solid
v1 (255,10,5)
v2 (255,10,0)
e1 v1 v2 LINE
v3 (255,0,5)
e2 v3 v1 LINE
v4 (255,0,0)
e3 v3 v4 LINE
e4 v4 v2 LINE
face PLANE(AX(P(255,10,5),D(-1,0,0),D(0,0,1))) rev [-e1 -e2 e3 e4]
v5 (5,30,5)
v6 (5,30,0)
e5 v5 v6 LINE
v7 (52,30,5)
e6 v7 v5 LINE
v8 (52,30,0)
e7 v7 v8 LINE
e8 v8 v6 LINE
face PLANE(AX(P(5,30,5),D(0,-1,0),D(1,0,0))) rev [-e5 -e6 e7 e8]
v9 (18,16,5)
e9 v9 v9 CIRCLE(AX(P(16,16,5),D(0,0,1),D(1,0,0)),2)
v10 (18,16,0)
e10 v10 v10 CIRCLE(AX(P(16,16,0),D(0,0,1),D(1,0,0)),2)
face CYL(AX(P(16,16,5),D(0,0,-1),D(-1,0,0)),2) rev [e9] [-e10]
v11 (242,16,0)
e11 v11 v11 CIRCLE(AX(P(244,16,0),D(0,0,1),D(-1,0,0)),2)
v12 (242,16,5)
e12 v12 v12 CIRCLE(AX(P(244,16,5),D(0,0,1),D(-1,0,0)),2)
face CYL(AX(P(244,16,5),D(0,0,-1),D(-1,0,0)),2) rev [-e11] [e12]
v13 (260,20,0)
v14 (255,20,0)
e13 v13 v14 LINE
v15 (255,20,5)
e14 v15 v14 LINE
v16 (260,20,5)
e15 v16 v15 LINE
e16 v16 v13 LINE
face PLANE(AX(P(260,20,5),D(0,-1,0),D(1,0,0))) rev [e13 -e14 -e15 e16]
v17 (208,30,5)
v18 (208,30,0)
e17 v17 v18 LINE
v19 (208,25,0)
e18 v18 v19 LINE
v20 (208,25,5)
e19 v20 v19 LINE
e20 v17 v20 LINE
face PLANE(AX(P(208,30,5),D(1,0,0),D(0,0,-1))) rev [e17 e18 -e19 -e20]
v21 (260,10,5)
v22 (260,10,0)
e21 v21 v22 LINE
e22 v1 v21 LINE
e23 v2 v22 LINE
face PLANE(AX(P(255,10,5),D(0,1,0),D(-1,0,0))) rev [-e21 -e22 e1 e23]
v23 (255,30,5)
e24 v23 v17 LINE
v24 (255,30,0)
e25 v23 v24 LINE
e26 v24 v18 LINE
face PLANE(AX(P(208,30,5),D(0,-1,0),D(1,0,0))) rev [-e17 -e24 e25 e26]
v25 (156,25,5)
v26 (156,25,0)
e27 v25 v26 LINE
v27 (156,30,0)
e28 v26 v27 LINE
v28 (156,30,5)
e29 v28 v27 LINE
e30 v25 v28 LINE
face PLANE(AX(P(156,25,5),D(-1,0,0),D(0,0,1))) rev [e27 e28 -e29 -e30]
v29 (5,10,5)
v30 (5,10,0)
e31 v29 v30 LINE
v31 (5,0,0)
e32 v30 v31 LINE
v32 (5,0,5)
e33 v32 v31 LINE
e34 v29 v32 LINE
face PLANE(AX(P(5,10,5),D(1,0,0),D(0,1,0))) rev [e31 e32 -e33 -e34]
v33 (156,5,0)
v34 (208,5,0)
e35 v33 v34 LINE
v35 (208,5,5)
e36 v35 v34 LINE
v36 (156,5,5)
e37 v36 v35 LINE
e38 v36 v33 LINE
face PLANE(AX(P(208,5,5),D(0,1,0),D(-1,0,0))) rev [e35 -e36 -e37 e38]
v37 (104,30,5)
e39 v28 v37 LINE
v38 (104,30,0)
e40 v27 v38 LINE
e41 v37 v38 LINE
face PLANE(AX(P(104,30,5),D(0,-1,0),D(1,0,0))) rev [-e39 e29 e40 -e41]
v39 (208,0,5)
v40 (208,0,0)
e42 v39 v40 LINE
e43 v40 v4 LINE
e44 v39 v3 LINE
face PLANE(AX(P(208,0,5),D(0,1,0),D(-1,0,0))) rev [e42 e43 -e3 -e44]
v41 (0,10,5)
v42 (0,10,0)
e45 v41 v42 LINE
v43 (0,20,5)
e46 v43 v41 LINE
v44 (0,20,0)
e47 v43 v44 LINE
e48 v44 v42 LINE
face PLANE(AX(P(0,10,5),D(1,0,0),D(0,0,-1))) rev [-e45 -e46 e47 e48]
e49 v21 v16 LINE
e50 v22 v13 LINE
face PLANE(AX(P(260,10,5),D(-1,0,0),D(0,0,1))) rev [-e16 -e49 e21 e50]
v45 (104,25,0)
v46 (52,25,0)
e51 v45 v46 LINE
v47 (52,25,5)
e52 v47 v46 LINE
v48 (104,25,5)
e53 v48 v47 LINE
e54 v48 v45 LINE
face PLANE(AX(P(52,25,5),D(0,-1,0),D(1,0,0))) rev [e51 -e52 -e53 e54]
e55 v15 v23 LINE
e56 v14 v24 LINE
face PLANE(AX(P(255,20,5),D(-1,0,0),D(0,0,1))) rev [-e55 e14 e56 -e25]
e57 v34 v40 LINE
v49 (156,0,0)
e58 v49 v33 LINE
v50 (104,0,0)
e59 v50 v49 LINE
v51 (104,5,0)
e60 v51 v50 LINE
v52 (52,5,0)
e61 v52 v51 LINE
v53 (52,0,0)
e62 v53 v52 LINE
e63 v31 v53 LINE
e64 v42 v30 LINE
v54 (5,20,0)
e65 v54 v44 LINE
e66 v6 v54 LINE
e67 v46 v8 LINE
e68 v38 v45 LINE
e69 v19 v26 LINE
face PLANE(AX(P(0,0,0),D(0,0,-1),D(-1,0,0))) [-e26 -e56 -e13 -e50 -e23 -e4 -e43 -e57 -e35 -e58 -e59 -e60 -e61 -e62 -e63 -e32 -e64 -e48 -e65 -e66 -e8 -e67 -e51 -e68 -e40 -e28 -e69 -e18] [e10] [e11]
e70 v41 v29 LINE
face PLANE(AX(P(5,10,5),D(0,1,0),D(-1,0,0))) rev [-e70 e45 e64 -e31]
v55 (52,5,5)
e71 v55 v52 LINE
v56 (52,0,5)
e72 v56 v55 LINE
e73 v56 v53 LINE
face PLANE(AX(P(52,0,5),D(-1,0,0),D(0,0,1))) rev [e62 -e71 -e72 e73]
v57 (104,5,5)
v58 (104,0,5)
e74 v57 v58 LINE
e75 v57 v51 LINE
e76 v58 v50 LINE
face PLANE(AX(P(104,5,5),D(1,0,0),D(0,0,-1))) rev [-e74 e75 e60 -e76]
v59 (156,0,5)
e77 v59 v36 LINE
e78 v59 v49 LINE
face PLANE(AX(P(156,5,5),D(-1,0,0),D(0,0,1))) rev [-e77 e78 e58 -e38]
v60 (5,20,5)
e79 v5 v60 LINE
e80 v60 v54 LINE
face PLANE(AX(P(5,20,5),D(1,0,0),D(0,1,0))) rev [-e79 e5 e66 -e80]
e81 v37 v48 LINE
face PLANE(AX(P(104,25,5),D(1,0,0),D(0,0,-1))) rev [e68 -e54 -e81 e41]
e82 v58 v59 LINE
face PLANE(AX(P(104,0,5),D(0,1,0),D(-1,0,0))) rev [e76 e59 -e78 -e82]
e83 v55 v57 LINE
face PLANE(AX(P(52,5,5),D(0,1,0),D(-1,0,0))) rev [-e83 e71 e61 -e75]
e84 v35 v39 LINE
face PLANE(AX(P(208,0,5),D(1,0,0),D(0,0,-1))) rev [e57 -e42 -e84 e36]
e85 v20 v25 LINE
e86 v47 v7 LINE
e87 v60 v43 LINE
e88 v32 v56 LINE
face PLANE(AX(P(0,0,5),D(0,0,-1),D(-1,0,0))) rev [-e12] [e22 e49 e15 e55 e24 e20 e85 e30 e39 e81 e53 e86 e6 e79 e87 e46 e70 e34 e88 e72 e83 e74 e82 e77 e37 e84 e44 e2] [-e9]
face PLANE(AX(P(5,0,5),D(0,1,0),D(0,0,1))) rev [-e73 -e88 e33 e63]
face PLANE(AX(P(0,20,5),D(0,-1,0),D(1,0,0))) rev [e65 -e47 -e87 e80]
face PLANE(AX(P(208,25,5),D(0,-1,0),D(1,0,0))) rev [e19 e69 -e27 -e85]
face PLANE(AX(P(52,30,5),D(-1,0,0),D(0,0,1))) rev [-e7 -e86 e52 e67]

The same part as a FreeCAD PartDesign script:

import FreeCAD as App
import Part
import Sketcher
Q = App.Units.Quantity

doc = App.newDocument("Part")
body = doc.addObject("PartDesign::Body", "Body")

# Sketch on XY plane
sketch1 = body.newObject("Sketcher::SketchObject", "Sketch")
sketch1.AttachmentSupport = (doc.getObject("XY_Plane"), [""])
sketch1.MapMode = "FlatFace"
sketch1.addGeometry([
    Part.LineSegment(App.Vector(5, 20, 0), App.Vector(0, 20, 0)),  # 0
    Part.LineSegment(App.Vector(0, 20, 0), App.Vector(0, 10, 0)),  # 1
    Part.LineSegment(App.Vector(0, 10, 0), App.Vector(5, 10, 0)),  # 2
    Part.LineSegment(App.Vector(5, 10, 0), App.Vector(5, 0, 0)),  # 3
    Part.LineSegment(App.Vector(5, 0, 0), App.Vector(52, 0, 0)),  # 4
    Part.LineSegment(App.Vector(52, 0, 0), App.Vector(52, 5, 0)),  # 5
    Part.LineSegment(App.Vector(52, 5, 0), App.Vector(104, 5, 0)),  # 6
    Part.LineSegment(App.Vector(104, 5, 0), App.Vector(104, 0, 0)),  # 7
    Part.LineSegment(App.Vector(104, 0, 0), App.Vector(156, 0, 0)),  # 8
    Part.LineSegment(App.Vector(156, 0, 0), App.Vector(156, 5, 0)),  # 9
    Part.LineSegment(App.Vector(156, 5, 0), App.Vector(208, 5, 0)),  # 10
    Part.LineSegment(App.Vector(208, 5, 0), App.Vector(208, 0, 0)),  # 11
    Part.LineSegment(App.Vector(208, 0, 0), App.Vector(255, 0, 0)),  # 12
    Part.LineSegment(App.Vector(255, 0, 0), App.Vector(255, 10, 0)),  # 13
    Part.LineSegment(App.Vector(255, 10, 0), App.Vector(260, 10, 0)),  # 14
    Part.LineSegment(App.Vector(260, 10, 0), App.Vector(260, 20, 0)),  # 15
    Part.LineSegment(App.Vector(260, 20, 0), App.Vector(255, 20, 0)),  # 16
    Part.LineSegment(App.Vector(255, 20, 0), App.Vector(255, 30, 0)),  # 17
    Part.LineSegment(App.Vector(255, 30, 0), App.Vector(208, 30, 0)),  # 18
    Part.LineSegment(App.Vector(208, 30, 0), App.Vector(208, 25, 0)),  # 19
    Part.LineSegment(App.Vector(208, 25, 0), App.Vector(156, 25, 0)),  # 20
    Part.LineSegment(App.Vector(156, 25, 0), App.Vector(156, 30, 0)),  # 21
    Part.LineSegment(App.Vector(156, 30, 0), App.Vector(104, 30, 0)),  # 22
    Part.LineSegment(App.Vector(104, 30, 0), App.Vector(104, 25, 0)),  # 23
    Part.LineSegment(App.Vector(104, 25, 0), App.Vector(52, 25, 0)),  # 24
    Part.LineSegment(App.Vector(52, 25, 0), App.Vector(52, 30, 0)),  # 25
    Part.LineSegment(App.Vector(52, 30, 0), App.Vector(5, 30, 0)),  # 26
    Part.LineSegment(App.Vector(5, 30, 0), App.Vector(5, 20, 0)),  # 27
    Part.Circle(App.Vector(244, 16, 0), App.Vector(0, 0, 1), 2),  # 28
    Part.Circle(App.Vector(16, 16, 0), App.Vector(0, 0, 1), 2),  # 29
], False)
sketch1.addConstraint([
    Sketcher.Constraint("Coincident", 0, 2, 1, 1),
    Sketcher.Constraint("Coincident", 1, 2, 2, 1),
    Sketcher.Constraint("Coincident", 2, 2, 3, 1),
    Sketcher.Constraint("Coincident", 3, 2, 4, 1),
    Sketcher.Constraint("Coincident", 4, 2, 5, 1),
    Sketcher.Constraint("Coincident", 5, 2, 6, 1),
    Sketcher.Constraint("Coincident", 6, 2, 7, 1),
    Sketcher.Constraint("Coincident", 7, 2, 8, 1),
    Sketcher.Constraint("Coincident", 8, 2, 9, 1),
    Sketcher.Constraint("Coincident", 9, 2, 10, 1),
    Sketcher.Constraint("Coincident", 10, 2, 11, 1),
    Sketcher.Constraint("Coincident", 11, 2, 12, 1),
    Sketcher.Constraint("Coincident", 12, 2, 13, 1),
    Sketcher.Constraint("Coincident", 13, 2, 14, 1),
    Sketcher.Constraint("Coincident", 14, 2, 15, 1),
    Sketcher.Constraint("Coincident", 15, 2, 16, 1),
    Sketcher.Constraint("Coincident", 16, 2, 17, 1),
    Sketcher.Constraint("Coincident", 17, 2, 18, 1),
    Sketcher.Constraint("Coincident", 18, 2, 19, 1),
    Sketcher.Constraint("Coincident", 19, 2, 20, 1),
    Sketcher.Constraint("Coincident", 20, 2, 21, 1),
    Sketcher.Constraint("Coincident", 21, 2, 22, 1),
    Sketcher.Constraint("Coincident", 22, 2, 23, 1),
    Sketcher.Constraint("Coincident", 23, 2, 24, 1),
    Sketcher.Constraint("Coincident", 24, 2, 25, 1),
    Sketcher.Constraint("Coincident", 25, 2, 26, 1),
    Sketcher.Constraint("Coincident", 26, 2, 27, 1),
    Sketcher.Constraint("Coincident", 27, 2, 0, 1),
    Sketcher.Constraint("Horizontal", 0),
    Sketcher.Constraint("Vertical", 1),
    Sketcher.Constraint("Horizontal", 2),
    Sketcher.Constraint("Vertical", 3),
    Sketcher.Constraint("Horizontal", 4),
    Sketcher.Constraint("Vertical", 5),
    Sketcher.Constraint("Horizontal", 6),
    Sketcher.Constraint("Vertical", 7),
    Sketcher.Constraint("Horizontal", 8),
    Sketcher.Constraint("Vertical", 9),
    Sketcher.Constraint("Horizontal", 10),
    Sketcher.Constraint("Vertical", 11),
    Sketcher.Constraint("Horizontal", 12),
    Sketcher.Constraint("Vertical", 13),
    Sketcher.Constraint("Horizontal", 14),
    Sketcher.Constraint("Vertical", 15),
    Sketcher.Constraint("Horizontal", 16),
    Sketcher.Constraint("Vertical", 17),
    Sketcher.Constraint("Horizontal", 18),
    Sketcher.Constraint("Vertical", 19),
    Sketcher.Constraint("Horizontal", 20),
    Sketcher.Constraint("Vertical", 21),
    Sketcher.Constraint("Horizontal", 22),
    Sketcher.Constraint("Vertical", 23),
    Sketcher.Constraint("Horizontal", 24),
    Sketcher.Constraint("Vertical", 25),
    Sketcher.Constraint("Horizontal", 26),
    Sketcher.Constraint("Vertical", 27),
    Sketcher.Constraint("Equal", 28, 29),
    Sketcher.Constraint("PointOnObject", 0, 2, -2),
    Sketcher.Constraint("PointOnObject", 3, 2, -1),
    Sketcher.Constraint("PointOnObject", 7, 2, -1),
    Sketcher.Constraint("PointOnObject", 11, 2, -1),
    Sketcher.Constraint("Horizontal", 28, 3, 29, 3),
    Sketcher.Constraint("Horizontal", 6, 2, 9, 2),
    Sketcher.Constraint("Horizontal", 2, 2, 13, 2),
    Sketcher.Constraint("Horizontal", 0, 2, 15, 2),
    Sketcher.Constraint("Horizontal", 18, 2, 21, 2),
    Sketcher.Constraint("Horizontal", 20, 2, 23, 2),
    Sketcher.Constraint("Horizontal", 22, 2, 25, 2),
    Sketcher.Constraint("Vertical", 13, 2, 16, 2),
    Sketcher.Constraint("Vertical", 11, 2, 18, 2),
    Sketcher.Constraint("Vertical", 9, 2, 20, 2),
    Sketcher.Constraint("Vertical", 7, 2, 22, 2),
    Sketcher.Constraint("Vertical", 5, 2, 24, 2),
    Sketcher.Constraint("Vertical", 3, 2, 26, 2),
    Sketcher.Constraint("Equal", 6, 8),
    Sketcher.Constraint("Equal", 8, 10),
    Sketcher.Constraint("Equal", 4, 12),
    Sketcher.Constraint("Equal", 2, 14),
    Sketcher.Constraint("Equal", 1, 3),
    Sketcher.Constraint("Equal", 16, 5),
    Sketcher.Constraint("Equal", 15, 17),
    Sketcher.Constraint("Equal", 11, 19),
    Sketcher.Constraint("Diameter", 28, Q("4 mm")),
    Sketcher.Constraint("DistanceX", 0, 2, 0, 1, Q("5 mm")),
    Sketcher.Constraint("DistanceX", 4, 1, 4, 2, Q("47 mm")),
    Sketcher.Constraint("DistanceX", 6, 1, 6, 2, Q("52 mm")),
    Sketcher.Constraint("DistanceY", 1, 2, 1, 1, Q("10 mm")),
    Sketcher.Constraint("DistanceX", -1, 1, 28, 3, Q("244 mm")),
    Sketcher.Constraint("DistanceY", -1, 1, 28, 3, Q("16 mm")),
    Sketcher.Constraint("DistanceX", -1, 1, 29, 3, Q("16 mm")),
])
pad1 = body.newObject("PartDesign::Pad", "Pad")
pad1.Profile = sketch1
pad1.Length = 5

doc.recompute()
